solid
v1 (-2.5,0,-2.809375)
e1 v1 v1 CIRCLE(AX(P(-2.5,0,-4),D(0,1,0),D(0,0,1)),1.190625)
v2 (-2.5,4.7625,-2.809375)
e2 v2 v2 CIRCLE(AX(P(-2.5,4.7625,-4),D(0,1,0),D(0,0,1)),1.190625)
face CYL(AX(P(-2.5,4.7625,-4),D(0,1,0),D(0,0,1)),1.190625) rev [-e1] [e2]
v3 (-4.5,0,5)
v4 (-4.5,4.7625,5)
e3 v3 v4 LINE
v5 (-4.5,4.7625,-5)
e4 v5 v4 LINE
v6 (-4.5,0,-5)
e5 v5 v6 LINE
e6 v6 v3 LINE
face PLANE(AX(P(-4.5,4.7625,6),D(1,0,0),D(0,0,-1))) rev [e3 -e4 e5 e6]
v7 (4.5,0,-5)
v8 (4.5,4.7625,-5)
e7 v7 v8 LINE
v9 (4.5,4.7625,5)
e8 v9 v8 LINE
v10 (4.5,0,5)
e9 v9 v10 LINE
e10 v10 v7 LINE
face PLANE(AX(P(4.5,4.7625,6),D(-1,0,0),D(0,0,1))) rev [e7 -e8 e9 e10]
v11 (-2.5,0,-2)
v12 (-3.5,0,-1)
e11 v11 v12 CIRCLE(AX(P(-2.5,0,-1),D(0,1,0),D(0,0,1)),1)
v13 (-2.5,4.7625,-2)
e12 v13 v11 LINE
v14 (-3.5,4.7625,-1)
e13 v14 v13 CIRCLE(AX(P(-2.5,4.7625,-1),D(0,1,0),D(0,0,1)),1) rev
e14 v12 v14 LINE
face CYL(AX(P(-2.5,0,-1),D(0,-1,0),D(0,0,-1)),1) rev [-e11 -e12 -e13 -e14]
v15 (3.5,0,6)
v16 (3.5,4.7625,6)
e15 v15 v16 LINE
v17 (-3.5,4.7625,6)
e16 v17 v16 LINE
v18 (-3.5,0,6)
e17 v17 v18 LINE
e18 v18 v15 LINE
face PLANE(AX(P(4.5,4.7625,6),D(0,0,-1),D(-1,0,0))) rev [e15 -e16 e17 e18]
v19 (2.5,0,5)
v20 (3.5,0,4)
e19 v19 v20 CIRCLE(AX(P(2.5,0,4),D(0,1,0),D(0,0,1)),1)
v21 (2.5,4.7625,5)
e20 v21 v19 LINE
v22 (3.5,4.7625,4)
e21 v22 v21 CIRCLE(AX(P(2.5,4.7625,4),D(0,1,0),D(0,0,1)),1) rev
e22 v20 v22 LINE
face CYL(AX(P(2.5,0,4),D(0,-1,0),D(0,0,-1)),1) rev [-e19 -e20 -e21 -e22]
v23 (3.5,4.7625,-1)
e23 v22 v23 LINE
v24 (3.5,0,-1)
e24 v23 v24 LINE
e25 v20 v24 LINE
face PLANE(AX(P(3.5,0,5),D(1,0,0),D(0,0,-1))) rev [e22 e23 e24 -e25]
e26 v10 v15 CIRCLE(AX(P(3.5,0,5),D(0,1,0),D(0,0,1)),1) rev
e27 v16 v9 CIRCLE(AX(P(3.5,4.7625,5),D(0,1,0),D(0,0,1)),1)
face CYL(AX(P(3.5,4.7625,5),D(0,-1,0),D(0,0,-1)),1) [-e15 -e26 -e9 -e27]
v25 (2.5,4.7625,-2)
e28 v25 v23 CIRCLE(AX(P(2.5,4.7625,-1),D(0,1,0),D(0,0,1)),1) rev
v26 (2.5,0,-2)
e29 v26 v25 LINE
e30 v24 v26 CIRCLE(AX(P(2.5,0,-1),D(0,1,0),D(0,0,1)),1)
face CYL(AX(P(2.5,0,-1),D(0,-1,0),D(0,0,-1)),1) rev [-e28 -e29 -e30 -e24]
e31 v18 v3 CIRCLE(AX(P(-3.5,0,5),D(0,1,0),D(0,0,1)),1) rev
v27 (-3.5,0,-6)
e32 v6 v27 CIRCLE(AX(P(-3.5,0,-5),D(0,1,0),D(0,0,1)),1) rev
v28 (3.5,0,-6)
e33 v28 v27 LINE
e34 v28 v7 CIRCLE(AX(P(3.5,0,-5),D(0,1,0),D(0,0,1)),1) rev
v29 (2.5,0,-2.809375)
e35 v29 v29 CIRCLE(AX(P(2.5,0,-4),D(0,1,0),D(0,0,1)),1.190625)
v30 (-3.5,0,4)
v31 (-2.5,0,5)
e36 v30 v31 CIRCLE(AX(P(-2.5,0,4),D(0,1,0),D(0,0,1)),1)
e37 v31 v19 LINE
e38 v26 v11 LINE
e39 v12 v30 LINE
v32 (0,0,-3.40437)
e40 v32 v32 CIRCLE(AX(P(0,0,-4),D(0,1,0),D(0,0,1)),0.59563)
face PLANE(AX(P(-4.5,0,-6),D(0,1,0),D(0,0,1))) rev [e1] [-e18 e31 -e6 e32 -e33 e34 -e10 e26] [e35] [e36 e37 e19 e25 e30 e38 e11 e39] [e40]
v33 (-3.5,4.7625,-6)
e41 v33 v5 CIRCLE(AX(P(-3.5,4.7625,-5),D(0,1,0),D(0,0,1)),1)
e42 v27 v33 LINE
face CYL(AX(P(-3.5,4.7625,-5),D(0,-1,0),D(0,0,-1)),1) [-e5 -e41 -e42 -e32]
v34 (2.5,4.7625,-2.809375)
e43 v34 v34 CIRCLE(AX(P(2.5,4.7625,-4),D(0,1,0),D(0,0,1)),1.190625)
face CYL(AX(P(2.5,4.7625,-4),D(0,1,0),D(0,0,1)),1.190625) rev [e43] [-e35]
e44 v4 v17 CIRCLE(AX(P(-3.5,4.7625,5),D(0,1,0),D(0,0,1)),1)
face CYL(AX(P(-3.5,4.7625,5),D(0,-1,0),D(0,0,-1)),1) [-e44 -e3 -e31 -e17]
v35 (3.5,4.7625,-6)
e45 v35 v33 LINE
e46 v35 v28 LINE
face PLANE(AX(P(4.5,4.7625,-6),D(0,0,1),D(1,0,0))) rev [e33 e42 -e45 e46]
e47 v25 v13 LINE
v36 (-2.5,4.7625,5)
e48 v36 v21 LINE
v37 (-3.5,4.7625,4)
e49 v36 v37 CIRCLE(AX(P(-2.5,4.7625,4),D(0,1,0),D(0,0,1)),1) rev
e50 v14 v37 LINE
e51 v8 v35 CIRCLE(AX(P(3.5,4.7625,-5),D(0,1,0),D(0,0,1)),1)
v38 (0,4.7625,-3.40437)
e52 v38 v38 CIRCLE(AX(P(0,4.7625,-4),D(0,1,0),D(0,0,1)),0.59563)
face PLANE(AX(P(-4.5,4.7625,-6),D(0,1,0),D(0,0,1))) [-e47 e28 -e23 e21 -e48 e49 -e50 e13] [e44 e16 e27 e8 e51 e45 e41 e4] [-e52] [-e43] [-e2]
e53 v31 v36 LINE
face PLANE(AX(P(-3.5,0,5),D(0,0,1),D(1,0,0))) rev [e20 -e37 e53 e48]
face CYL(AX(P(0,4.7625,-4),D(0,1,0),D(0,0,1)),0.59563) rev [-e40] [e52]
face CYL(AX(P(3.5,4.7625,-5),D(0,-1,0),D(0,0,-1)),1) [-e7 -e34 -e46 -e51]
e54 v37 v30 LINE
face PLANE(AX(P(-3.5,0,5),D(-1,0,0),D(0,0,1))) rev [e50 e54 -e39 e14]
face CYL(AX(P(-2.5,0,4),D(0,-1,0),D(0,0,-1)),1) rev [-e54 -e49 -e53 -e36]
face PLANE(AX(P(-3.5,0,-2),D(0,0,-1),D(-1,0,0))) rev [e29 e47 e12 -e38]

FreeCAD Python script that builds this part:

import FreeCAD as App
import Part
import Sketcher


def edges_at(feature, points):
    """Names of the edges that pass closest to the given points."""
    edges = feature.Shape.Edges
    near = lambda p: min(range(len(edges)), key=lambda i: edges[i].distToShape(Part.Vertex(*p))[0])
    return sorted({f"Edge{near(p) + 1}" for p in points})


def add_polygon(sketch, points):
    """Adds a closed chain of lines whose ends are joined by coincident constraints."""
    first, n = sketch.GeometryCount, len(points)
    for a, b in zip(points, points[1:] + points[:1]):
        sketch.addGeometry(Part.LineSegment(App.Vector(*a, 0), App.Vector(*b, 0)), False)
    for i in range(n):
        sketch.addConstraint(Sketcher.Constraint("Coincident", first + i, 2, first + (i + 1) % n, 1))

doc = App.newDocument("Part")
body = doc.addObject("PartDesign::Body", "Body")

# Sketch on XZ plane
sketch1 = body.newObject("Sketcher::SketchObject", "Sketch")
sketch1.AttachmentSupport = (doc.getObject("XZ_Plane"), [""])
sketch1.MapMode = "FlatFace"
add_polygon(sketch1, [(-4, -6), (-4, 6), (4, 6), (4, -6)])  # lines 0-3
sketch1.addConstraint(Sketcher.Constraint("Vertical", 0))
sketch1.addConstraint(Sketcher.Constraint("Horizontal", 1))
sketch1.addConstraint(Sketcher.Constraint("Vertical", 2))
sketch1.addConstraint(Sketcher.Constraint("Horizontal", 3))
sketch1.addConstraint(Sketcher.Constraint("Symmetric", 0, 2, 2, 2, -1, 1))
sketch1.addConstraint(Sketcher.Constraint("DistanceX", 1, 1, 1, 2, 9.0))
sketch1.addConstraint(Sketcher.Constraint("DistanceY", 0, 1, 0, 2, 12.0))
pad1 = body.newObject("PartDesign::Pad", "Pad")
pad1.Profile = sketch1
pad1.Length = 4.7625
pad1.Reversed = True

# Sketch on XZ plane
sketch2 = body.newObject("Sketcher::SketchObject", "Sketch001")
sketch2.AttachmentSupport = (doc.getObject("XZ_Plane"), [""])
sketch2.MapMode = "FlatFace"
sketch2.AttachmentOffset = App.Placement(App.Vector(0, 0, -4.7625), App.Rotation())
add_polygon(sketch2, [(-4, -2), (-4, 5), (4, 5), (4, -2)])  # lines 0-3
sketch2.addConstraint(Sketcher.Constraint("Vertical", 0))
sketch2.addConstraint(Sketcher.Constraint("Horizontal", 1))
sketch2.addConstraint(Sketcher.Constraint("Vertical", 2))
sketch2.addConstraint(Sketcher.Constraint("Horizontal", 3))
sketch2.addConstraint(Sketcher.Constraint("Equal", 3, 0))
sketch2.addConstraint(Sketcher.Constraint("DistanceX", 1, 1, 1, 2, 7.0))
sketch2.addConstraint(Sketcher.Constraint("DistanceY", -1, 1, 0, 2, 5.0))
sketch2.addConstraint(Sketcher.Constraint("DistanceX", 0, 2, -1, 1, 3.5))
pocket1 = body.newObject("PartDesign::Pocket", "Pocket")
pocket1.Profile = sketch2
pocket1.Type = "ThroughAll"
pocket1.Reversed = True

# Sketch on XZ plane
sketch3 = body.newObject("Sketcher::SketchObject", "Sketch002")
sketch3.AttachmentSupport = (doc.getObject("XZ_Plane"), [""])
sketch3.MapMode = "FlatFace"
sketch3.AttachmentOffset = App.Placement(App.Vector(0, 0, -4.7625), App.Rotation())
sketch3.addGeometry(Part.Circle(App.Vector(0, -4, 0), App.Vector(0, 0, 1), 0.6), False)
sketch3.addConstraint(Sketcher.Constraint("PointOnObject", 0, 3, -2))
sketch3.addConstraint(Sketcher.Constraint("DistanceY", 0, 3, -1, 1, 4.0))
sketch3.addConstraint(Sketcher.Constraint("Diameter", 0, 1.19126))
doc.recompute()
hole = body.newObject("PartDesign::Hole", "Hole")
hole.Profile = sketch3
hole.ThreadType = "None"
hole.Diameter = 1.19126
hole.DepthType = "ThroughAll"
hole.Reversed = True

# Sketch on XZ plane
sketch4 = body.newObject("Sketcher::SketchObject", "Sketch003")
sketch4.AttachmentSupport = (doc.getObject("XZ_Plane"), [""])
sketch4.MapMode = "FlatFace"
sketch4.AttachmentOffset = App.Placement(App.Vector(0, 0, -4.7625), App.Rotation())
sketch4.addGeometry(Part.Circle(App.Vector(-2.5, -4, 0), App.Vector(0, 0, 1), 1.2), False)
sketch4.addGeometry(Part.Circle(App.Vector(2.5, -4, 0), App.Vector(0, 0, 1), 1.2), False)
sketch4.addConstraint(Sketcher.Constraint("Equal", 0, 1))
sketch4.addConstraint(Sketcher.Constraint("Symmetric", 0, 3, 1, 3, -2))
sketch4.addConstraint(Sketcher.Constraint("DistanceY", 0, 3, -1, 1, 4.0))
sketch4.addConstraint(Sketcher.Constraint("DistanceX", 0, 3, 1, 3, 5.0))
sketch4.addConstraint(Sketcher.Constraint("Diameter", 0, 2.38125))
doc.recompute()
hole2 = body.newObject("PartDesign::Hole", "Hole001")
hole2.Profile = sketch4
hole2.ThreadType = "None"
hole2.Diameter = 2.38125
hole2.DepthType = "Dimension"
hole2.Depth = 10
hole2.DrillPoint = "Angled"
hole2.DrillPointAngle = 118
hole2.Reversed = True
doc.recompute()

fillet = body.newObject("PartDesign::Fillet", "Fillet")
fillet.Base = (hole2, edges_at(hole2, [
    (-3.5, 2.381, 5),
    (-3.5, 2.381, -2),
    (3.5, 2.381, -2),
    (3.5, 2.381, 5),
    (-4.5, 2.381, -6),
    (4.5, 2.381, -6),
    (4.5, 2.381, 6),
    (-4.5, 2.381, 6),
]))
fillet.Radius = 1

doc.recompute()
